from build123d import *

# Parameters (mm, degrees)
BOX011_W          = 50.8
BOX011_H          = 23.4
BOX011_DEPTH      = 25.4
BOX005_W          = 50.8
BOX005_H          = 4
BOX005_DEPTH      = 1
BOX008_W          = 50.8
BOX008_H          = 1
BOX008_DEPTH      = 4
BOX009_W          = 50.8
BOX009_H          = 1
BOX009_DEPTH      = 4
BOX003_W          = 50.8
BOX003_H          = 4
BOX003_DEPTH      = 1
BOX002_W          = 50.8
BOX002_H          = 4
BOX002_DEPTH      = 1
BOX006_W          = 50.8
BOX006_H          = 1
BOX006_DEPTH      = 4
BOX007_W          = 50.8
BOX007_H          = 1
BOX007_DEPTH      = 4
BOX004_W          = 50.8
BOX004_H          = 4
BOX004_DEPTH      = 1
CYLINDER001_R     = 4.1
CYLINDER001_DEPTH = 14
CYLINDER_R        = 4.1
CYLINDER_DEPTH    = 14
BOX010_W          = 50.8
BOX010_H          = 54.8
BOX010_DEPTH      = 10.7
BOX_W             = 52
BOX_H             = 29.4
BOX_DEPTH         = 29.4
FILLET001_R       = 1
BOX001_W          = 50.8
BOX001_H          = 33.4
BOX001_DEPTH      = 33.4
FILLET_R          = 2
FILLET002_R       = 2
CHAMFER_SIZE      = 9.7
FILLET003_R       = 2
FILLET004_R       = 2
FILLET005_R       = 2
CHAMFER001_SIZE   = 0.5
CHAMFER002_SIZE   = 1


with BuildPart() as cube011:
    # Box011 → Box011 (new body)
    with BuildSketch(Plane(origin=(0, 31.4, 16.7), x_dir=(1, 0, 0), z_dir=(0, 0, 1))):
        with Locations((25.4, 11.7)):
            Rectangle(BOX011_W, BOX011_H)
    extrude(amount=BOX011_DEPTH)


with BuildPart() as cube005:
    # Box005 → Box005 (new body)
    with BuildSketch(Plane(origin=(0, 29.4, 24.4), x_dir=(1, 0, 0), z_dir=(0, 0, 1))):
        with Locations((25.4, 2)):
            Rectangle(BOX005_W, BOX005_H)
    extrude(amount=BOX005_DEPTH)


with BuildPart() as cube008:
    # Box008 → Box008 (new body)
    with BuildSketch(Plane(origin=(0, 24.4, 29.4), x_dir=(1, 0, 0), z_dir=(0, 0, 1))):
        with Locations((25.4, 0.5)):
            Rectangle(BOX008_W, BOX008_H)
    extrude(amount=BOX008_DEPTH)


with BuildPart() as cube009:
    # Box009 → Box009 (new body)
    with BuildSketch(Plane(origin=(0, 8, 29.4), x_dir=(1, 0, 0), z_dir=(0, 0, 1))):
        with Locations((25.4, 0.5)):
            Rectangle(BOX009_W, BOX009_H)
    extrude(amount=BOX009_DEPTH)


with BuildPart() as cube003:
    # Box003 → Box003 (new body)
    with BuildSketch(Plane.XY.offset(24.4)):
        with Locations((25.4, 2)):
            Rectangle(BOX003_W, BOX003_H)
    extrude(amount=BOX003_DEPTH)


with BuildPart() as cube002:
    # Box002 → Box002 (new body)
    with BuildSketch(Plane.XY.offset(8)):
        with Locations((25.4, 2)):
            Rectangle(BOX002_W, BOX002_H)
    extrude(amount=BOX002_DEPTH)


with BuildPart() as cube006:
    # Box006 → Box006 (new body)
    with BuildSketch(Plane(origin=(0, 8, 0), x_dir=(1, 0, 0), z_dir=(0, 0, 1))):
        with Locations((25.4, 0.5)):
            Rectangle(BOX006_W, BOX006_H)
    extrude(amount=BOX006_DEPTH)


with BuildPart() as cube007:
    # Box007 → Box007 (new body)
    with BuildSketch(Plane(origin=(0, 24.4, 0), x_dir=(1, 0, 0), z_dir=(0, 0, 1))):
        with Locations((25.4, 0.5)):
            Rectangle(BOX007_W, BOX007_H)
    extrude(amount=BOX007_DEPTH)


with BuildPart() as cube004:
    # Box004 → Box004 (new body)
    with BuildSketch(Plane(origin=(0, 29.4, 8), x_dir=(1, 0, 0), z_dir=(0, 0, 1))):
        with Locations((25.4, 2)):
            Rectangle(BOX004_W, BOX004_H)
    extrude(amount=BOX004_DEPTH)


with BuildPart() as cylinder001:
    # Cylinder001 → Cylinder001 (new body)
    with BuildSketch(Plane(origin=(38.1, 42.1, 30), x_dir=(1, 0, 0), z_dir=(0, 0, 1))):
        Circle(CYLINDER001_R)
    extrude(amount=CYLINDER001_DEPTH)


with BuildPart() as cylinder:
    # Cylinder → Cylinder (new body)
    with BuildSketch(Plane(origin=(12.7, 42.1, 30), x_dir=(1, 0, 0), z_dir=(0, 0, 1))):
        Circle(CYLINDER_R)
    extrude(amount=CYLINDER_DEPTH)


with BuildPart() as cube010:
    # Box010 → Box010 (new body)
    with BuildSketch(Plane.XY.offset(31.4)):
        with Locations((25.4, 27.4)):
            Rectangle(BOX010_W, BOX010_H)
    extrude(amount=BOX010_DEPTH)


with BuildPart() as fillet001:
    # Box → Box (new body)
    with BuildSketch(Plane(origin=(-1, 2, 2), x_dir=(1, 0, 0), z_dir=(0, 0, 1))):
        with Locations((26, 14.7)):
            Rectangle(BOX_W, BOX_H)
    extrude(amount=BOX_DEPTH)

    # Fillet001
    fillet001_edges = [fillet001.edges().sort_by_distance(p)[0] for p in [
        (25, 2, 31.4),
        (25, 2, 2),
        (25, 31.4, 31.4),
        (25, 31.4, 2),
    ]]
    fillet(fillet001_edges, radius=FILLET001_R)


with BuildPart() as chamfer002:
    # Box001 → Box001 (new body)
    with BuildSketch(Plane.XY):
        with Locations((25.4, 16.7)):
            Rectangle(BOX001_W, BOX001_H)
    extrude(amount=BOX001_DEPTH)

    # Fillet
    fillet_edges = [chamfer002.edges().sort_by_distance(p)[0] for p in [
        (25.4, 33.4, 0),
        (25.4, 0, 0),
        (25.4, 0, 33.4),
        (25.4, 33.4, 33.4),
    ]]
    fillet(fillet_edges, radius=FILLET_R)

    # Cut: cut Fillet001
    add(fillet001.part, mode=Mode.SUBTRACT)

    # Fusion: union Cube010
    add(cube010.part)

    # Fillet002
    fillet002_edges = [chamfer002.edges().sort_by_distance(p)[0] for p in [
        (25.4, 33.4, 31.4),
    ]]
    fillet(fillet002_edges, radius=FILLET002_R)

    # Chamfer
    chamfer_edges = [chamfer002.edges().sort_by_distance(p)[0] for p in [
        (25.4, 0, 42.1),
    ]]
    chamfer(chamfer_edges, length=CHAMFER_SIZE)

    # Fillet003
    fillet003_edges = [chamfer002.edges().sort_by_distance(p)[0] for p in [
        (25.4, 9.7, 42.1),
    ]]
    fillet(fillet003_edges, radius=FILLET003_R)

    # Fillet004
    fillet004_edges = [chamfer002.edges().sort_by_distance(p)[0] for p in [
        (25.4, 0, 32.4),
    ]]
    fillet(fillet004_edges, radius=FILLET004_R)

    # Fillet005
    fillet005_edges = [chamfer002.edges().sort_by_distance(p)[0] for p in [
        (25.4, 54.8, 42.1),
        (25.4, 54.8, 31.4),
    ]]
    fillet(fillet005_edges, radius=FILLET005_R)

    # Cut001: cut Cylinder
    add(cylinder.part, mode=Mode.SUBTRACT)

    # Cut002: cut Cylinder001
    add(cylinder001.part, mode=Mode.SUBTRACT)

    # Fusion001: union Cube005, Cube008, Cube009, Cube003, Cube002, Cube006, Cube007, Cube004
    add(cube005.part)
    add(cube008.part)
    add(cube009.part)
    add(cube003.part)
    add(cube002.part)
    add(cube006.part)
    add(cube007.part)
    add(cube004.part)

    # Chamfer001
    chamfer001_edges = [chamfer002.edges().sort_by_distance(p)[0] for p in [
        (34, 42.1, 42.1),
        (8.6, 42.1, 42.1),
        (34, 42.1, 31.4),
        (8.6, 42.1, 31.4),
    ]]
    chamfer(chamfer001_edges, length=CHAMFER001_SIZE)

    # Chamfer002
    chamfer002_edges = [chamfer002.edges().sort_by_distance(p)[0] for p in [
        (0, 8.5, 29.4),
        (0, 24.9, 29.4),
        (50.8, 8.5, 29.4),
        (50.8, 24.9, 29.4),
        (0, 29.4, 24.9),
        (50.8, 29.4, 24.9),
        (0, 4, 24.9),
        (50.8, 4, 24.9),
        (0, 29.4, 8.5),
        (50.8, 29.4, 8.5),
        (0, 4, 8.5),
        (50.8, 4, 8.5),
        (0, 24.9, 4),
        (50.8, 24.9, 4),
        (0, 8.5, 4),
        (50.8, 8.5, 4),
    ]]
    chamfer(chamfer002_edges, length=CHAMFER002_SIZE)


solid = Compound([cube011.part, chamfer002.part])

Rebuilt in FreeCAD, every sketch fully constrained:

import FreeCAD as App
import Part
import Sketcher
from FreeCAD import Vector
Q = App.Units.Quantity


def edges_at(feature, points):
    """Names of the edges that pass closest to the given points."""
    edges = feature.Shape.Edges
    near = lambda p: min(range(len(edges)), key=lambda i: edges[i].distToShape(Part.Vertex(*p))[0])
    return sorted({f"Edge{near(p) + 1}" for p in points})


def add_polygon(sketch, points):
    """Adds a closed chain of lines whose ends are joined by coincident constraints."""
    first, n = sketch.GeometryCount, len(points)
    for a, b in zip(points, points[1:] + points[:1]):
        sketch.addGeometry(Part.LineSegment(App.Vector(*a, 0), App.Vector(*b, 0)), False)
    for i in range(n):
        sketch.addConstraint(Sketcher.Constraint("Coincident", first + i, 2, first + (i + 1) % n, 1))

doc = App.newDocument("Part")
body = doc.addObject("PartDesign::Body", "Body")

# Sketch on XY plane
sketch1 = body.newObject("Sketcher::SketchObject", "Sketch")
sketch1.AttachmentSupport = (doc.getObject("XY_Plane"), [""])
sketch1.MapMode = "FlatFace"
sketch1.AttachmentOffset = App.Placement(Vector(0, 0, 16.7), App.Rotation())
add_polygon(sketch1, [(0, 55), (0, 31), (51, 31), (51, 55)])  # lines 0-3
sketch1.addConstraint([
    Sketcher.Constraint("Vertical", 0),
    Sketcher.Constraint("Horizontal", 1),
    Sketcher.Constraint("Vertical", 2),
    Sketcher.Constraint("Horizontal", 3),
    Sketcher.Constraint("PointOnObject", 0, 2, -2),
    Sketcher.Constraint("DistanceX", 1, 1, 1, 2, Q("50.8 mm")),
    Sketcher.Constraint("DistanceY", 0, 2, 0, 1, Q("23.4 mm")),
    Sketcher.Constraint("DistanceY", -1, 1, 0, 2, Q("31.4 mm")),
])
pad1 = body.newObject("PartDesign::Pad", "Pad")
pad1.Profile = sketch1
pad1.Length = 25.4
body2 = doc.addObject("PartDesign::Body", "Body001")

# Sketch on XY plane
sketch2 = body2.newObject("Sketcher::SketchObject", "Sketch001")
sketch2.AttachmentSupport = (doc.getObject("XY_Plane001"), [""])
sketch2.MapMode = "FlatFace"
sketch2.AttachmentOffset = App.Placement(Vector(0, 0, 24.4), App.Rotation())
add_polygon(sketch2, [(0, 33.4), (0, 29.4), (50.8, 29.4), (50.8, 33.4)])  # lines 0-3
sketch2.addConstraint([
    Sketcher.Constraint("Vertical", 0),
    Sketcher.Constraint("Horizontal", 1),
    Sketcher.Constraint("Vertical", 2),
    Sketcher.Constraint("Horizontal", 3),
    Sketcher.Constraint("PointOnObject", 0, 2, -2),
    Sketcher.Constraint("DistanceY", 0, 2, 0, 1, Q("4 mm")),
    Sketcher.Constraint("DistanceX", 1, 1, 1, 2, Q("50.8 mm")),
    Sketcher.Constraint("DistanceY", -1, 1, 0, 2, Q("29.4 mm")),
])
pad2 = body2.newObject("PartDesign::Pad", "Pad001")
pad2.Profile = sketch2
pad2.Length = 1
body3 = doc.addObject("PartDesign::Body", "Body002")

# Sketch on XY plane
sketch3 = body3.newObject("Sketcher::SketchObject", "Sketch002")
sketch3.AttachmentSupport = (doc.getObject("XY_Plane002"), [""])
sketch3.MapMode = "FlatFace"
sketch3.AttachmentOffset = App.Placement(Vector(0, 0, 29.4), App.Rotation())
add_polygon(sketch3, [(0, 25.4), (0, 24.4), (50.8, 24.4), (50.8, 25.4)])  # lines 0-3
sketch3.addConstraint([
    Sketcher.Constraint("Vertical", 0),
    Sketcher.Constraint("Horizontal", 1),
    Sketcher.Constraint("Vertical", 2),
    Sketcher.Constraint("Horizontal", 3),
    Sketcher.Constraint("PointOnObject", 0, 2, -2),
    Sketcher.Constraint("DistanceY", 0, 2, 0, 1, Q("1 mm")),
    Sketcher.Constraint("DistanceX", 1, 1, 1, 2, Q("50.8 mm")),
    Sketcher.Constraint("DistanceY", -1, 1, 0, 2, Q("24.4 mm")),
])
pad3 = body3.newObject("PartDesign::Pad", "Pad002")
pad3.Profile = sketch3
pad3.Length = 4
body4 = doc.addObject("PartDesign::Body", "Body003")

# Sketch on XY plane
sketch4 = body4.newObject("Sketcher::SketchObject", "Sketch003")
sketch4.AttachmentSupport = (doc.getObject("XY_Plane003"), [""])
sketch4.MapMode = "FlatFace"
sketch4.AttachmentOffset = App.Placement(Vector(0, 0, 29.4), App.Rotation())
add_polygon(sketch4, [(0, 9), (0, 8), (50.8, 8), (50.8, 9)])  # lines 0-3
sketch4.addConstraint([
    Sketcher.Constraint("Vertical", 0),
    Sketcher.Constraint("Horizontal", 1),
    Sketcher.Constraint("Vertical", 2),
    Sketcher.Constraint("Horizontal", 3),
    Sketcher.Constraint("PointOnObject", 0, 2, -2),
    Sketcher.Constraint("DistanceY", 0, 2, 0, 1, Q("1 mm")),
    Sketcher.Constraint("DistanceX", 1, 1, 1, 2, Q("50.8 mm")),
    Sketcher.Constraint("DistanceY", -1, 1, 0, 2, Q("8 mm")),
])
pad4 = body4.newObject("PartDesign::Pad", "Pad003")
pad4.Profile = sketch4
pad4.Length = 4
body5 = doc.addObject("PartDesign::Body", "Body004")

# Sketch on XY plane
sketch5 = body5.newObject("Sketcher::SketchObject", "Sketch004")
sketch5.AttachmentSupport = (doc.getObject("XY_Plane004"), [""])
sketch5.MapMode = "FlatFace"
sketch5.AttachmentOffset = App.Placement(Vector(0, 0, 24.4), App.Rotation())
add_polygon(sketch5, [(0, 4), (0, 0), (50.8, 0), (50.8, 4)])  # lines 0-3
sketch5.addConstraint([
    Sketcher.Constraint("Vertical", 0),
    Sketcher.Constraint("Horizontal", 1),
    Sketcher.Constraint("Vertical", 2),
    Sketcher.Constraint("Horizontal", 3),
    Sketcher.Constraint("Coincident", 0, 2, -1, 1),
    Sketcher.Constraint("DistanceY", 0, 2, 0, 1, Q("4 mm")),
    Sketcher.Constraint("DistanceX", 1, 1, 1, 2, Q("50.8 mm")),
])
pad5 = body5.newObject("PartDesign::Pad", "Pad004")
pad5.Profile = sketch5
pad5.Length = 1
body6 = doc.addObject("PartDesign::Body", "Body005")

# Sketch on XY plane
sketch6 = body6.newObject("Sketcher::SketchObject", "Sketch005")
sketch6.AttachmentSupport = (doc.getObject("XY_Plane005"), [""])
sketch6.MapMode = "FlatFace"
sketch6.AttachmentOffset = App.Placement(Vector(0, 0, 8), App.Rotation())
add_polygon(sketch6, [(0, 4), (0, 0), (50.8, 0), (50.8, 4)])  # lines 0-3
sketch6.addConstraint([
    Sketcher.Constraint("Vertical", 0),
    Sketcher.Constraint("Horizontal", 1),
    Sketcher.Constraint("Vertical", 2),
    Sketcher.Constraint("Horizontal", 3),
    Sketcher.Constraint("Coincident", 0, 2, -1, 1),
    Sketcher.Constraint("DistanceY", 0, 2, 0, 1, Q("4 mm")),
    Sketcher.Constraint("DistanceX", 1, 1, 1, 2, Q("50.8 mm")),
])
pad6 = body6.newObject("PartDesign::Pad", "Pad005")
pad6.Profile = sketch6
pad6.Length = 1
body7 = doc.addObject("PartDesign::Body", "Body006")

# Sketch on XY plane
sketch7 = body7.newObject("Sketcher::SketchObject", "Sketch006")
sketch7.AttachmentSupport = (doc.getObject("XY_Plane006"), [""])
sketch7.MapMode = "FlatFace"
add_polygon(sketch7, [(0, 9), (0, 8), (50.8, 8), (50.8, 9)])  # lines 0-3
sketch7.addConstraint([
    Sketcher.Constraint("Vertical", 0),
    Sketcher.Constraint("Horizontal", 1),
    Sketcher.Constraint("Vertical", 2),
    Sketcher.Constraint("Horizontal", 3),
    Sketcher.Constraint("PointOnObject", 0, 2, -2),
    Sketcher.Constraint("DistanceY", 0, 2, 0, 1, Q("1 mm")),
    Sketcher.Constraint("DistanceX", 1, 1, 1, 2, Q("50.8 mm")),
    Sketcher.Constraint("DistanceY", -1, 1, 0, 2, Q("8 mm")),
])
pad7 = body7.newObject("PartDesign::Pad", "Pad006")
pad7.Profile = sketch7
pad7.Length = 4
body8 = doc.addObject("PartDesign::Body", "Body007")

# Sketch on XY plane
sketch8 = body8.newObject("Sketcher::SketchObject", "Sketch007")
sketch8.AttachmentSupport = (doc.getObject("XY_Plane007"), [""])
sketch8.MapMode = "FlatFace"
add_polygon(sketch8, [(0, 25.4), (0, 24.4), (50.8, 24.4), (50.8, 25.4)])  # lines 0-3
sketch8.addConstraint([
    Sketcher.Constraint("Vertical", 0),
    Sketcher.Constraint("Horizontal", 1),
    Sketcher.Constraint("Vertical", 2),
    Sketcher.Constraint("Horizontal", 3),
    Sketcher.Constraint("PointOnObject", 0, 2, -2),
    Sketcher.Constraint("DistanceY", 0, 2, 0, 1, Q("1 mm")),
    Sketcher.Constraint("DistanceX", 1, 1, 1, 2, Q("50.8 mm")),
    Sketcher.Constraint("DistanceY", -1, 1, 0, 2, Q("24.4 mm")),
])
pad8 = body8.newObject("PartDesign::Pad", "Pad007")
pad8.Profile = sketch8
pad8.Length = 4
body9 = doc.addObject("PartDesign::Body", "Body008")

# Sketch on XY plane
sketch9 = body9.newObject("Sketcher::SketchObject", "Sketch008")
sketch9.AttachmentSupport = (doc.getObject("XY_Plane008"), [""])
sketch9.MapMode = "FlatFace"
sketch9.AttachmentOffset = App.Placement(Vector(0, 0, 8), App.Rotation())
add_polygon(sketch9, [(0, 33.4), (0, 29.4), (50.8, 29.4), (50.8, 33.4)])  # lines 0-3
sketch9.addConstraint([
    Sketcher.Constraint("Vertical", 0),
    Sketcher.Constraint("Horizontal", 1),
    Sketcher.Constraint("Vertical", 2),
    Sketcher.Constraint("Horizontal", 3),
    Sketcher.Constraint("PointOnObject", 0, 2, -2),
    Sketcher.Constraint("DistanceY", 0, 2, 0, 1, Q("4 mm")),
    Sketcher.Constraint("DistanceX", 1, 1, 1, 2, Q("50.8 mm")),
    Sketcher.Constraint("DistanceY", -1, 1, 0, 2, Q("29.4 mm")),
])
pad9 = body9.newObject("PartDesign::Pad", "Pad008")
pad9.Profile = sketch9
pad9.Length = 1
body10 = doc.addObject("PartDesign::Body", "Body009")

# Sketch on XY plane
sketch10 = body10.newObject("Sketcher::SketchObject", "Sketch009")
sketch10.AttachmentSupport = (doc.getObject("XY_Plane009"), [""])
sketch10.MapMode = "FlatFace"
sketch10.AttachmentOffset = App.Placement(Vector(0, 0, 30), App.Rotation())
sketch10.addGeometry(Part.Circle(Vector(38.1, 42.1, 0), Vector(0, 0, 1), 4.1), False)
sketch10.addConstraint([
    Sketcher.Constraint("Diameter", 0, Q("8.2 mm")),
    Sketcher.Constraint("DistanceX", -1, 1, 0, 3, Q("38.1 mm")),
    Sketcher.Constraint("DistanceY", -1, 1, 0, 3, Q("42.1 mm")),
])
pad10 = body10.newObject("PartDesign::Pad", "Pad009")
pad10.Profile = sketch10
pad10.Length = 14
body11 = doc.addObject("PartDesign::Body", "Body010")

# Sketch on XY plane
sketch11 = body11.newObject("Sketcher::SketchObject", "Sketch010")
sketch11.AttachmentSupport = (doc.getObject("XY_Plane010"), [""])
sketch11.MapMode = "FlatFace"
sketch11.AttachmentOffset = App.Placement(Vector(0, 0, 30), App.Rotation())
sketch11.addGeometry(Part.Circle(Vector(12.7, 42.1, 0), Vector(0, 0, 1), 4.1), False)
sketch11.addConstraint([
    Sketcher.Constraint("Diameter", 0, Q("8.2 mm")),
    Sketcher.Constraint("DistanceX", -1, 1, 0, 3, Q("12.7 mm")),
    Sketcher.Constraint("DistanceY", -1, 1, 0, 3, Q("42.1 mm")),
])
pad11 = body11.newObject("PartDesign::Pad", "Pad010")
pad11.Profile = sketch11
pad11.Length = 14
body12 = doc.addObject("PartDesign::Body", "Body011")

# Sketch on XY plane
sketch12 = body12.newObject("Sketcher::SketchObject", "Sketch011")
sketch12.AttachmentSupport = (doc.getObject("XY_Plane011"), [""])
sketch12.MapMode = "FlatFace"
sketch12.AttachmentOffset = App.Placement(Vector(0, 0, 31.4), App.Rotation())
add_polygon(sketch12, [(0, 55), (0, 0), (51, 0), (51, 55)])  # lines 0-3
sketch12.addConstraint([
    Sketcher.Constraint("Vertical", 0),
    Sketcher.Constraint("Horizontal", 1),
    Sketcher.Constraint("Vertical", 2),
    Sketcher.Constraint("Horizontal", 3),
    Sketcher.Constraint("Coincident", 0, 2, -1, 1),
    Sketcher.Constraint("DistanceX", 1, 1, 1, 2, Q("50.8 mm")),
    Sketcher.Constraint("DistanceY", 0, 2, 0, 1, Q("54.8 mm")),
])
pad12 = body12.newObject("PartDesign::Pad", "Pad011")
pad12.Profile = sketch12
pad12.Length = 10.7
body13 = doc.addObject("PartDesign::Body", "Body012")

# Sketch on XY plane
sketch13 = body13.newObject("Sketcher::SketchObject", "Sketch012")
sketch13.AttachmentSupport = (doc.getObject("XY_Plane012"), [""])
sketch13.MapMode = "FlatFace"
sketch13.AttachmentOffset = App.Placement(Vector(0, 0, 2), App.Rotation())
add_polygon(sketch13, [(-1, 31), (-1, 2), (51, 2), (51, 31)])  # lines 0-3
sketch13.addConstraint([
    Sketcher.Constraint("Vertical", 0),
    Sketcher.Constraint("Horizontal", 1),
    Sketcher.Constraint("Vertical", 2),
    Sketcher.Constraint("Horizontal", 3),
    Sketcher.Constraint("DistanceX", 1, 1, 1, 2, Q("52 mm")),
    Sketcher.Constraint("DistanceY", 0, 2, 0, 1, Q("29.4 mm")),
    Sketcher.Constraint("DistanceX", 0, 2, -1, 1, Q("1 mm")),
    Sketcher.Constraint("DistanceY", -1, 1, 0, 2, Q("2 mm")),
])
pad13 = body13.newObject("PartDesign::Pad", "Pad012")
pad13.Profile = sketch13
pad13.Length = 29.4
doc.recompute()

fillet = body13.newObject("PartDesign::Fillet", "Fillet")
fillet.Base = (pad13, edges_at(pad13, [
    (25, 2, 31.4),
    (25, 2, 2),
    (25, 31.4, 31.4),
    (25, 31.4, 2),
]))
fillet.Radius = 1
body14 = doc.addObject("PartDesign::Body", "Body013")

# Sketch on XY plane
sketch14 = body14.newObject("Sketcher::SketchObject", "Sketch013")
sketch14.AttachmentSupport = (doc.getObject("XY_Plane013"), [""])
sketch14.MapMode = "FlatFace"
add_polygon(sketch14, [(0, 33), (0, 0), (51, 0), (51, 33)])  # lines 0-3
sketch14.addConstraint([
    Sketcher.Constraint("Vertical", 0),
    Sketcher.Constraint("Horizontal", 1),
    Sketcher.Constraint("Vertical", 2),
    Sketcher.Constraint("Horizontal", 3),
    Sketcher.Constraint("Coincident", 0, 2, -1, 1),
    Sketcher.Constraint("DistanceX", 1, 1, 1, 2, Q("50.8 mm")),
    Sketcher.Constraint("DistanceY", 0, 2, 0, 1, Q("33.4 mm")),
])
pad14 = body14.newObject("PartDesign::Pad", "Pad013")
pad14.Profile = sketch14
pad14.Length = 33.4
doc.recompute()

fillet2 = body14.newObject("PartDesign::Fillet", "Fillet001")
fillet2.Base = (pad14, edges_at(pad14, [
    (25.4, 33.4, 0),
    (25.4, 0, 0),
    (25.4, 0, 33.4),
    (25.4, 33.4, 33.4),
]))
fillet2.Radius = 2
doc.recompute()

boolean = body14.newObject("PartDesign::Boolean", "Boolean")
boolean.Type = "Cut"
boolean.addObjects([body13])
doc.recompute()

boolean2 = body14.newObject("PartDesign::Boolean", "Boolean001")
boolean2.Type = "Fuse"
boolean2.addObjects([body12])
doc.recompute()

fillet3 = body14.newObject("PartDesign::Fillet", "Fillet002")
fillet3.Base = (boolean2, edges_at(boolean2, [(25.4, 33.4, 31.4)]))
fillet3.Radius = 2
doc.recompute()

chamfer = body14.newObject("PartDesign::Chamfer", "Chamfer")
chamfer.Base = (fillet3, edges_at(fillet3, [(25.4, 0, 42.1)]))
chamfer.Size = 9.7
doc.recompute()

fillet4 = body14.newObject("PartDesign::Fillet", "Fillet003")
fillet4.Base = (chamfer, edges_at(chamfer, [(25.4, 9.7, 42.1)]))
fillet4.Radius = 2
doc.recompute()

fillet5 = body14.newObject("PartDesign::Fillet", "Fillet004")
fillet5.Base = (fillet4, edges_at(fillet4, [(25.4, 0, 32.4)]))
fillet5.Radius = 2
doc.recompute()

fillet6 = body14.newObject("PartDesign::Fillet", "Fillet005")
fillet6.Base = (fillet5, edges_at(fillet5, [(25.4, 54.8, 42.1), (25.4, 54.8, 31.4)]))
fillet6.Radius = 2
doc.recompute()

boolean3 = body14.newObject("PartDesign::Boolean", "Boolean002")
boolean3.Type = "Cut"
boolean3.addObjects([body11])
doc.recompute()

boolean4 = body14.newObject("PartDesign::Boolean", "Boolean003")
boolean4.Type = "Cut"
boolean4.addObjects([body10])
doc.recompute()

boolean5 = body14.newObject("PartDesign::Boolean", "Boolean004")
boolean5.Type = "Fuse"
boolean5.addObjects([body2])
doc.recompute()

boolean6 = body14.newObject("PartDesign::Boolean", "Boolean005")
boolean6.Type = "Fuse"
boolean6.addObjects([body3])
doc.recompute()

boolean7 = body14.newObject("PartDesign::Boolean", "Boolean006")
boolean7.Type = "Fuse"
boolean7.addObjects([body4])
doc.recompute()

boolean8 = body14.newObject("PartDesign::Boolean", "Boolean007")
boolean8.Type = "Fuse"
boolean8.addObjects([body5])
doc.recompute()

boolean9 = body14.newObject("PartDesign::Boolean", "Boolean008")
boolean9.Type = "Fuse"
boolean9.addObjects([body6])
doc.recompute()

boolean10 = body14.newObject("PartDesign::Boolean", "Boolean009")
boolean10.Type = "Fuse"
boolean10.addObjects([body7])
doc.recompute()

boolean11 = body14.newObject("PartDesign::Boolean", "Boolean010")
boolean11.Type = "Fuse"
boolean11.addObjects([body8])
doc.recompute()

boolean12 = body14.newObject("PartDesign::Boolean", "Boolean011")
boolean12.Type = "Fuse"
boolean12.addObjects([body9])
doc.recompute()

chamfer2 = body14.newObject("PartDesign::Chamfer", "Chamfer001")
chamfer2.Base = (boolean12, edges_at(boolean12, [
    (34, 42.1, 42.1),
    (8.6, 42.1, 42.1),
    (34, 42.1, 31.4),
    (8.6, 42.1, 31.4),
]))
chamfer2.Size = 0.5
doc.recompute()

chamfer3 = body14.newObject("PartDesign::Chamfer", "Chamfer002")
chamfer3.Base = (chamfer2, edges_at(chamfer2, [
    (0, 8.5, 29.4),
    (0, 24.9, 29.4),
    (50.8, 8.5, 29.4),
    (50.8, 24.9, 29.4),
    (0, 29.4, 24.9),
    (50.8, 29.4, 24.9),
    (0, 4, 24.9),
    (50.8, 4, 24.9),
    (0, 29.4, 8.5),
    (50.8, 29.4, 8.5),
    (0, 4, 8.5),
    (50.8, 4, 8.5),
    (0, 24.9, 4),
    (50.8, 24.9, 4),
    (0, 8.5, 4),
    (50.8, 8.5, 4),
]))
chamfer3.Size = 1

doc.recompute()
